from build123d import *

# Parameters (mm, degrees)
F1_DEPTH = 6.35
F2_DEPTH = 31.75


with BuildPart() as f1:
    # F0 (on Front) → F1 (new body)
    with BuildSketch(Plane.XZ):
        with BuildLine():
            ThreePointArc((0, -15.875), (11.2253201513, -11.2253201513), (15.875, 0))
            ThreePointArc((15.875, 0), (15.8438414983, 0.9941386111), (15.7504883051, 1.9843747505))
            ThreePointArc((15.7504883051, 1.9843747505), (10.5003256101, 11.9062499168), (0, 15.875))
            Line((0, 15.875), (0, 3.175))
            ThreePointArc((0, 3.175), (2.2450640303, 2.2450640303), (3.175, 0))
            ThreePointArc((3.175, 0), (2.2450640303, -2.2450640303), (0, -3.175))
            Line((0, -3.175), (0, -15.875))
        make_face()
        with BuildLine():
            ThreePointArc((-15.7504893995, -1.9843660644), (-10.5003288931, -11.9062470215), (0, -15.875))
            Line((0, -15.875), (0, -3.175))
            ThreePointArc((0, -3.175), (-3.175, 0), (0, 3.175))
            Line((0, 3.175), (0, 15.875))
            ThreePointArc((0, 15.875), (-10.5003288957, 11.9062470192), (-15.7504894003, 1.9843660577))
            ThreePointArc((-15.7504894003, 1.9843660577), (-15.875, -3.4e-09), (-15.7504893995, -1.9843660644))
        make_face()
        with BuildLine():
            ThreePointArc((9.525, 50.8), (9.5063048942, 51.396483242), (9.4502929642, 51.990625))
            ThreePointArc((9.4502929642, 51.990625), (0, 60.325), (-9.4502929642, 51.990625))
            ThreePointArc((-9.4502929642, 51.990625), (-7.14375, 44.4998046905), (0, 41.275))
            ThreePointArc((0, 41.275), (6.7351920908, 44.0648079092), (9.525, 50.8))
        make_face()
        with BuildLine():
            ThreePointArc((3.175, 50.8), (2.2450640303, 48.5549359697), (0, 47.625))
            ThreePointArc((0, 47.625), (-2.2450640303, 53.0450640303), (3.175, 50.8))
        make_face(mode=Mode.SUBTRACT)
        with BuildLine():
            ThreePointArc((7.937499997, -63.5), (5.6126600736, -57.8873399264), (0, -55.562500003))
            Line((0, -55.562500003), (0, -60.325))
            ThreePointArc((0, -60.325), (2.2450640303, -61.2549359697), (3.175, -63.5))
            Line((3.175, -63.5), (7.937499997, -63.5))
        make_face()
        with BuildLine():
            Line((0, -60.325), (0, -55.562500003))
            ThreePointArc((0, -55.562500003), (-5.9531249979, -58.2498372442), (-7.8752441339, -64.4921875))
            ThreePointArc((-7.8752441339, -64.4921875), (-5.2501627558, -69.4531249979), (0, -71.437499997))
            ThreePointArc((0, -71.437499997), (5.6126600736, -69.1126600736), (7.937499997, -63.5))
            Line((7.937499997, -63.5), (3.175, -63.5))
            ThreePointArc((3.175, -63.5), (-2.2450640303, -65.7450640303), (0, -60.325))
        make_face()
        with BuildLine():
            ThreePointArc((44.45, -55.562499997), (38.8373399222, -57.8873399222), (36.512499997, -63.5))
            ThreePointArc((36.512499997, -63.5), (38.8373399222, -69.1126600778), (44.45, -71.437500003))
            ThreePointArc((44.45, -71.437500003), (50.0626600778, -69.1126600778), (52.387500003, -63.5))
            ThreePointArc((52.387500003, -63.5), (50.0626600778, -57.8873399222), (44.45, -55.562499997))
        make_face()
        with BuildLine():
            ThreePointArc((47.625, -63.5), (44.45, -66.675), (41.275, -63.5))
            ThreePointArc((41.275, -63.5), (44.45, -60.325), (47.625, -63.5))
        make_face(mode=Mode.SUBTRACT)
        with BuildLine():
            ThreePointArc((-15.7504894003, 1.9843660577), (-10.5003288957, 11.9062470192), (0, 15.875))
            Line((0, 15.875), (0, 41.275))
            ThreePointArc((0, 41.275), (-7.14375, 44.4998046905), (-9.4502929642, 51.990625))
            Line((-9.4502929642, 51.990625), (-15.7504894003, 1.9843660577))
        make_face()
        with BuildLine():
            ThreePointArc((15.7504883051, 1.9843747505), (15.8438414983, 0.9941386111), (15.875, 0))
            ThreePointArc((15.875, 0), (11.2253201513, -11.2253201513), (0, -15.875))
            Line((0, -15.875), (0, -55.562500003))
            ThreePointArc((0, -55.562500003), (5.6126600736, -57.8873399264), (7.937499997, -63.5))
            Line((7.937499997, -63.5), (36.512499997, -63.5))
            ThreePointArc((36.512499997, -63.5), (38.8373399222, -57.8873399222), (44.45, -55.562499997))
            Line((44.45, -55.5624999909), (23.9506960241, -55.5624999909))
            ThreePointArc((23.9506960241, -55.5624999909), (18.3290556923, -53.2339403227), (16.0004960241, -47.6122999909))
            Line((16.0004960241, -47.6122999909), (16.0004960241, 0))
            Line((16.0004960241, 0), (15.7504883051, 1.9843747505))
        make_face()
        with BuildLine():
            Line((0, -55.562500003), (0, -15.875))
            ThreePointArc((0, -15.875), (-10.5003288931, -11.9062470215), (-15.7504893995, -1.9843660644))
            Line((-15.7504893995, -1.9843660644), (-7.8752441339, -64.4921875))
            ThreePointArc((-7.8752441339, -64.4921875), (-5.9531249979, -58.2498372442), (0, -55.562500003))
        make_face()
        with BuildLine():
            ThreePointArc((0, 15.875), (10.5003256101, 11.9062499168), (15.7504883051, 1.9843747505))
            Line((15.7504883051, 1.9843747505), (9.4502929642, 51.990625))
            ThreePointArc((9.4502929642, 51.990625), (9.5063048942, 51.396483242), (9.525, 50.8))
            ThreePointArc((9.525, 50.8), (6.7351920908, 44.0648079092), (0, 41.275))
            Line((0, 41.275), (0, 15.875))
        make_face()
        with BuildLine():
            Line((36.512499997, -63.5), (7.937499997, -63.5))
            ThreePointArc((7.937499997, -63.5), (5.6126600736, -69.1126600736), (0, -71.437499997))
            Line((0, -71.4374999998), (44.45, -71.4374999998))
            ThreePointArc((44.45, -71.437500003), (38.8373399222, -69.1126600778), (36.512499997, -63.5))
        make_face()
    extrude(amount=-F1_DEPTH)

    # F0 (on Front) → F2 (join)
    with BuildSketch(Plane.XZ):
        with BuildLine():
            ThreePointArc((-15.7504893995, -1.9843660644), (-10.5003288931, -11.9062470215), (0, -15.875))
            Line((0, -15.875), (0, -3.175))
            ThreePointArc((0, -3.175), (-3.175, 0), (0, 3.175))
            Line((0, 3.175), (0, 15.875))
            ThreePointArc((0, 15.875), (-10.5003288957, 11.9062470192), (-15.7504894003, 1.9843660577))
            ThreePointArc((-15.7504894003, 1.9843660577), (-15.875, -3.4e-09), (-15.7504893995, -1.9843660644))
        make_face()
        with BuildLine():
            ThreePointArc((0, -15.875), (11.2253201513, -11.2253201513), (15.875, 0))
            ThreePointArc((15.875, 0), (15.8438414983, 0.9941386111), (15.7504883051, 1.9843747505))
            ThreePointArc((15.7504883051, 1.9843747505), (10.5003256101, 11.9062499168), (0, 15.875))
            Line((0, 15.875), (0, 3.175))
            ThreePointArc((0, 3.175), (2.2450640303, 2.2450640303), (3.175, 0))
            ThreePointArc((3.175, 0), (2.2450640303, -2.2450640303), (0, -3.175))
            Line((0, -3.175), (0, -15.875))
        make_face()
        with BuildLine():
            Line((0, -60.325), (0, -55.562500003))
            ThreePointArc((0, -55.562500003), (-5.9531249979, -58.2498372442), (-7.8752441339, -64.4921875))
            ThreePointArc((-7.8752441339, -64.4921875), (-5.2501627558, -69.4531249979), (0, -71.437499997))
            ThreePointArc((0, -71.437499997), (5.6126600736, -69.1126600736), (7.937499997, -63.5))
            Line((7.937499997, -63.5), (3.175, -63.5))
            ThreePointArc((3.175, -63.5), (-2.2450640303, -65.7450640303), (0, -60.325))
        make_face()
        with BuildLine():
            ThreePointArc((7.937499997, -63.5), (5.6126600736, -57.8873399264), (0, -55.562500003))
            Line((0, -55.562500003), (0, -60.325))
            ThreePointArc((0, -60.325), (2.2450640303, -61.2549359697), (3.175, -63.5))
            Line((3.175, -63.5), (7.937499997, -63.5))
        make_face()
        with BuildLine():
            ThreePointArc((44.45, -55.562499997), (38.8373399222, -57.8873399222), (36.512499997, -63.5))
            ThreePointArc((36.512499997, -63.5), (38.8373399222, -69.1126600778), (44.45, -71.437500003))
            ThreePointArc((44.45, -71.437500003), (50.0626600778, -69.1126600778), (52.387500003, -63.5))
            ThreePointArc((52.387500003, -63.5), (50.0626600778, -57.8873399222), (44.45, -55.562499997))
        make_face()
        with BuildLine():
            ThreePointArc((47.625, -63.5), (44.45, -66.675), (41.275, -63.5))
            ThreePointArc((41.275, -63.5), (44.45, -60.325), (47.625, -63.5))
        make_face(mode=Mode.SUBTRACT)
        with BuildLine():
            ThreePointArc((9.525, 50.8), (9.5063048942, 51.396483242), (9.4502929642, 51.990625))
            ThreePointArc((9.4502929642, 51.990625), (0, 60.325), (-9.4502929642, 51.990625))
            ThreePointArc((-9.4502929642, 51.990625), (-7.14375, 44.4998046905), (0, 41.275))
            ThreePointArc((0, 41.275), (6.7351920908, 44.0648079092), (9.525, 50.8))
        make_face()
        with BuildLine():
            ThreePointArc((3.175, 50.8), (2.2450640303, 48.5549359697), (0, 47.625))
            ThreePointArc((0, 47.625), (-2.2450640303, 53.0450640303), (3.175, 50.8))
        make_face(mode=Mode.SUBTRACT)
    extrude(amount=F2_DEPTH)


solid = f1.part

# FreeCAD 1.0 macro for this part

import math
import FreeCAD as App
import Part
import Sketcher
from FreeCAD import Vector
Q = App.Units.Quantity

doc = App.newDocument("Part")
params = doc.addObject("Spreadsheet::Sheet", "Params")
for row, (alias, value) in enumerate([
    ("sketch1_diameter", "0.25 in"),
    ("sketch1_radius", "0.375 in"),
    ("sketch1_radius2", "0.625 in"),
    ("sketch1_radius3", "0.3125 in"),
    ("sketch1_radius4", "0.313 in"),
    ("pad1_length", "0.25 in"),
    ("sketch2_diameter", "0.25 in"),
    ("sketch2_radius", "0.625 in"),
    ("sketch2_radius2", "0.3125 in"),
    ("sketch2_radius3", "0.375 in"),
    ("pad2_length", "1.25 in"),
], start=1):
    params.set(f"A{row}", alias)
    params.set(f"B{row}", "=" + value)
    params.setAlias(f"B{row}", alias)

body = doc.addObject("PartDesign::Body", "Body")

sketch1 = body.newObject("Sketcher::SketchObject", "Sketch")
sketch1.AttachmentSupport = (doc.getObject("XZ_Plane"), [""])
sketch1.MapMode = "FlatFace"
sketch1.addGeometry([
    Part.ArcOfCircle(Part.Circle(Vector(0, 50.8, 0), Vector(0, 0, 1), 9.5), math.radians(7), math.radians(173)),
    Part.LineSegment(Vector(-9.5, 52, 0), Vector(-15.8, 2, 0)),
    Part.ArcOfCircle(Part.Circle(Vector(0, 0, 0), Vector(0, 0, 1), 15.9), math.radians(172.82), math.radians(187.18)),
    Part.LineSegment(Vector(-15.8, -2, 0), Vector(-7.9, -64.5, 0)),
    Part.ArcOfCircle(Part.Circle(Vector(0, -63.5, 0), Vector(0, 0, 1), 7.9), math.radians(-173), math.radians(-90)),
    Part.LineSegment(Vector(0, -71.4, 0), Vector(44.5, -71.4, 0)),
    Part.ArcOfCircle(Part.Circle(Vector(44.5, -63.5, 0), Vector(0, 0, 1), 7.9), math.radians(-90), math.radians(0)),
    Part.ArcOfCircle(Part.Circle(Vector(44.5, -63.5, 0), Vector(0, 0, 1), 7.9), math.radians(0), math.radians(90)),
    Part.LineSegment(Vector(44.5, -55.6, 0), Vector(24, -55.6, 0)),
    Part.ArcOfCircle(Part.Circle(Vector(24, -47.6, 0), Vector(0, 0, 1), 8), math.radians(180), math.radians(270)),
    Part.LineSegment(Vector(16, -47.6, 0), Vector(16, 0, 0)),
    Part.LineSegment(Vector(16, 0, 0), Vector(15.8, 2, 0)),
    Part.LineSegment(Vector(15.8, 2, 0), Vector(9.5, 52, 0)),
    Part.ArcOfCircle(Part.Circle(Vector(0, 0, 0), Vector(0, 0, 1), 3.2), math.radians(0), math.radians(90)),
    Part.ArcOfCircle(Part.Circle(Vector(0, 0, 0), Vector(0, 0, 1), 3.2), math.radians(-90), math.radians(0)),
    Part.ArcOfCircle(Part.Circle(Vector(0, 0, 0), Vector(0, 0, 1), 3.2), math.radians(90), math.radians(270)),
    Part.ArcOfCircle(Part.Circle(Vector(0, 50.8, 0), Vector(0, 0, 1), 3.2), math.radians(-90), math.radians(0)),
    Part.ArcOfCircle(Part.Circle(Vector(0, 50.8, 0), Vector(0, 0, 1), 3.2), math.radians(0), math.radians(270)),
    Part.ArcOfCircle(Part.Circle(Vector(0, -63.5, 0), Vector(0, 0, 1), 3.2), math.radians(90), math.radians(360)),
    Part.ArcOfCircle(Part.Circle(Vector(0, -63.5, 0), Vector(0, 0, 1), 3.2), math.radians(0), math.radians(90)),
    Part.Circle(Vector(44.5, -63.5, 0), Vector(0, 0, 1), 3.2),
], False)
sketch1.addConstraint([
    Sketcher.Constraint("Tangent", 0, 2, 1, 1),
    Sketcher.Constraint("Tangent", 1, 2, 2, 1),
    Sketcher.Constraint("Tangent", 2, 2, 3, 1),
    Sketcher.Constraint("Tangent", 3, 2, 4, 1),
    Sketcher.Constraint("Tangent", 4, 2, 5, 1),
    Sketcher.Constraint("Tangent", 5, 2, 6, 1),
    Sketcher.Constraint("Tangent", 6, 2, 7, 1),
    Sketcher.Constraint("Tangent", 7, 2, 8, 1),
    Sketcher.Constraint("Tangent", 8, 2, 9, 2),
    Sketcher.Constraint("Tangent", 9, 1, 10, 1),
    Sketcher.Constraint("Coincident", 10, 2, 11, 1),
    Sketcher.Constraint("Coincident", 11, 2, 12, 1),
    Sketcher.Constraint("Tangent", 12, 2, 0, 1),
    Sketcher.Constraint("Tangent", 13, 1, 14, 2),
    Sketcher.Constraint("Tangent", 14, 1, 15, 2),
    Sketcher.Constraint("Tangent", 15, 1, 13, 2),
    Sketcher.Constraint("Tangent", 16, 1, 17, 2),
    Sketcher.Constraint("Coincident", 17, 1, 16, 2),
    Sketcher.Constraint("Tangent", 18, 1, 19, 2),
    Sketcher.Constraint("Coincident", 19, 1, 18, 2),
    Sketcher.Constraint("Horizontal", 5),
    Sketcher.Constraint("Horizontal", 8),
    Sketcher.Constraint("Vertical", 10),
    Sketcher.Constraint("Coincident", 2, 3, -1, 1),
    Sketcher.Constraint("Coincident", 13, 3, -1, 1),
    Sketcher.Constraint("Coincident", 16, 3, 0, 3),
    Sketcher.Constraint("Coincident", 18, 3, 4, 3),
    Sketcher.Constraint("Coincident", 20, 3, 6, 3),
    Sketcher.Constraint("Equal", 4, 6),
    Sketcher.Constraint("Equal", 6, 7),
    Sketcher.Constraint("Equal", 15, 16),
    Sketcher.Constraint("Equal", 17, 18),
    Sketcher.Constraint("Equal", 19, 20),
    Sketcher.Constraint("Symmetric", 2, 2, 11, 2, -1, 1),
    Sketcher.Constraint("PointOnObject", 0, 3, -2),
    Sketcher.Constraint("PointOnObject", 4, 3, -2),
    Sketcher.Constraint("PointOnObject", 10, 2, -1),
    Sketcher.Constraint("PointOnObject", 13, 1, -1),
    Sketcher.Constraint("PointOnObject", 14, 1, -2),
    Sketcher.Constraint("PointOnObject", 15, 1, -2),
    Sketcher.Constraint("PointOnObject", 16, 1, -2),
    Sketcher.Constraint("PointOnObject", 18, 1, -2),
    Sketcher.Constraint("Parallel", 3, 11),
    Sketcher.Constraint("Parallel", 11, 12),
    Sketcher.Constraint("Horizontal", 20, 3, 6, 2),
    Sketcher.Constraint("Horizontal", 16, 3, 17, 1),
    Sketcher.Constraint("Horizontal", 6, 2, 19, 1),
    Sketcher.Constraint("Diameter", 20, Q("0.25 in")),
    Sketcher.Constraint("DistanceY", -1, 1, 0, 3, Q("2 in")),
    Sketcher.Constraint("Radius", 0, Q("0.375 in")),
    Sketcher.Constraint("Radius", 2, Q("0.625 in")),
    Sketcher.Constraint("Radius", 4, Q("0.3125 in")),
    Sketcher.Constraint("Radius", 9, Q("0.313 in")),
    Sketcher.Constraint("DistanceX", 5, 1, 5, 2, Q("1.75 in")),
])
sketch1.setExpression("Constraints[47]", "Params.sketch1_diameter")
sketch1.setExpression("Constraints[49]", "Params.sketch1_radius")
sketch1.setExpression("Constraints[50]", "Params.sketch1_radius2")
sketch1.setExpression("Constraints[51]", "Params.sketch1_radius3")
sketch1.setExpression("Constraints[52]", "Params.sketch1_radius4")
pad1 = body.newObject("PartDesign::Pad", "Pad")
pad1.Profile = sketch1
pad1.setExpression("Length", "Params.pad1_length")
pad1.Reversed = True

sketch2 = body.newObject("Sketcher::SketchObject", "Sketch001")
sketch2.AttachmentSupport = (doc.getObject("XZ_Plane"), [""])
sketch2.MapMode = "FlatFace"
sketch2.addGeometry([
    Part.ArcOfCircle(Part.Circle(Vector(0, 0, 0), Vector(0, 0, 1), 15.9), math.radians(-173), math.radians(-90)),
    Part.ArcOfCircle(Part.Circle(Vector(0, 0, 0), Vector(0, 0, 1), 15.9), math.radians(-90), math.radians(0)),
    Part.ArcOfCircle(Part.Circle(Vector(0, 0, 0), Vector(0, 0, 1), 15.9), math.radians(0), math.radians(7.18)),
    Part.ArcOfCircle(Part.Circle(Vector(0, 0, 0), Vector(0, 0, 1), 15.9), math.radians(7), math.radians(90)),
    Part.ArcOfCircle(Part.Circle(Vector(0, 0, 0), Vector(0, 0, 1), 15.9), math.radians(90), math.radians(173)),
    Part.ArcOfCircle(Part.Circle(Vector(0, 0, 0), Vector(0, 0, 1), 15.9), math.radians(172.82), math.radians(187.18)),
    Part.ArcOfCircle(Part.Circle(Vector(0, 0, 0), Vector(0, 0, 1), 3.2), math.radians(90), math.radians(270)),
    Part.ArcOfCircle(Part.Circle(Vector(0, 0, 0), Vector(0, 0, 1), 3.2), math.radians(0), math.radians(90)),
    Part.ArcOfCircle(Part.Circle(Vector(0, 0, 0), Vector(0, 0, 1), 3.2), math.radians(-90), math.radians(0)),
    Part.ArcOfCircle(Part.Circle(Vector(0, -63.5, 0), Vector(0, 0, 1), 7.9), math.radians(90), math.radians(187)),
    Part.ArcOfCircle(Part.Circle(Vector(0, -63.5, 0), Vector(0, 0, 1), 7.9), math.radians(-173), math.radians(-90)),
    Part.ArcOfCircle(Part.Circle(Vector(0, -63.5, 0), Vector(0, 0, 1), 7.9), math.radians(-90), math.radians(0)),
    Part.ArcOfCircle(Part.Circle(Vector(0, -63.5, 0), Vector(0, 0, 1), 7.9), math.radians(0), math.radians(90)),
    Part.ArcOfCircle(Part.Circle(Vector(0, -63.5, 0), Vector(0, 0, 1), 3.2), math.radians(90), math.radians(360)),
    Part.ArcOfCircle(Part.Circle(Vector(0, -63.5, 0), Vector(0, 0, 1), 3.2), math.radians(0), math.radians(90)),
    Part.ArcOfCircle(Part.Circle(Vector(44.5, -63.5, 0), Vector(0, 0, 1), 7.9), math.radians(90), math.radians(180)),
    Part.ArcOfCircle(Part.Circle(Vector(44.5, -63.5, 0), Vector(0, 0, 1), 7.9), math.radians(180), math.radians(270)),
    Part.ArcOfCircle(Part.Circle(Vector(44.5, -63.5, 0), Vector(0, 0, 1), 7.9), math.radians(-90), math.radians(0)),
    Part.ArcOfCircle(Part.Circle(Vector(44.5, -63.5, 0), Vector(0, 0, 1), 7.9), math.radians(0), math.radians(90)),
    Part.Circle(Vector(44.5, -63.5, 0), Vector(0, 0, 1), 3.2),
    Part.ArcOfCircle(Part.Circle(Vector(0, 50.8, 0), Vector(0, 0, 1), 9.5), math.radians(0), math.radians(7.18)),
    Part.ArcOfCircle(Part.Circle(Vector(0, 50.8, 0), Vector(0, 0, 1), 9.5), math.radians(7), math.radians(173)),
    Part.ArcOfCircle(Part.Circle(Vector(0, 50.8, 0), Vector(0, 0, 1), 9.5), math.radians(173), math.radians(270)),
    Part.ArcOfCircle(Part.Circle(Vector(0, 50.8, 0), Vector(0, 0, 1), 9.5), math.radians(-90), math.radians(0)),
    Part.ArcOfCircle(Part.Circle(Vector(0, 50.8, 0), Vector(0, 0, 1), 3.2), math.radians(0), math.radians(270)),
    Part.ArcOfCircle(Part.Circle(Vector(0, 50.8, 0), Vector(0, 0, 1), 3.2), math.radians(-90), math.radians(0)),
], False)
sketch2.addConstraint([
    Sketcher.Constraint("Tangent", 0, 2, 1, 1),
    Sketcher.Constraint("Tangent", 1, 2, 2, 1),
    Sketcher.Constraint("Tangent", 2, 2, 3, 1),
    Sketcher.Constraint("Tangent", 3, 2, 4, 1),
    Sketcher.Constraint("Tangent", 4, 2, 5, 1),
    Sketcher.Constraint("Tangent", 5, 2, 0, 1),
    Sketcher.Constraint("Tangent", 6, 1, 7, 2),
    Sketcher.Constraint("Tangent", 7, 1, 8, 2),
    Sketcher.Constraint("Tangent", 8, 1, 6, 2),
    Sketcher.Constraint("Tangent", 9, 2, 10, 1),
    Sketcher.Constraint("Tangent", 10, 2, 11, 1),
    Sketcher.Constraint("Tangent", 11, 2, 12, 1),
    Sketcher.Constraint("Tangent", 12, 2, 9, 1),
    Sketcher.Constraint("Tangent", 13, 1, 14, 2),
    Sketcher.Constraint("Coincident", 14, 1, 13, 2),
    Sketcher.Constraint("Tangent", 15, 2, 16, 1),
    Sketcher.Constraint("Tangent", 16, 2, 17, 1),
    Sketcher.Constraint("Tangent", 17, 2, 18, 1),
    Sketcher.Constraint("Tangent", 18, 2, 15, 1),
    Sketcher.Constraint("Tangent", 20, 2, 21, 1),
    Sketcher.Constraint("Tangent", 21, 2, 22, 1),
    Sketcher.Constraint("Tangent", 22, 2, 23, 1),
    Sketcher.Constraint("Tangent", 23, 2, 20, 1),
    Sketcher.Constraint("Tangent", 24, 1, 25, 2),
    Sketcher.Constraint("Coincident", 25, 1, 24, 2),
    Sketcher.Constraint("Coincident", 0, 3, -1, 1),
    Sketcher.Constraint("Coincident", 2, 3, -1, 1),
    Sketcher.Constraint("Coincident", 6, 3, -1, 1),
    Sketcher.Constraint("Coincident", 13, 3, 9, 3),
    Sketcher.Constraint("Coincident", 19, 3, 15, 3),
    Sketcher.Constraint("Coincident", 24, 3, 20, 3),
    Sketcher.Constraint("Equal", 2, 3),
    Sketcher.Constraint("Equal", 9, 10),
    Sketcher.Constraint("Equal", 8, 13),
    Sketcher.Constraint("Equal", 12, 15),
    Sketcher.Constraint("Equal", 15, 16),
    Sketcher.Constraint("Equal", 14, 19),
    Sketcher.Constraint("Equal", 20, 21),
    Sketcher.Constraint("Equal", 19, 24),
    Sketcher.Constraint("Symmetric", 20, 2, 21, 2, -2),
    Sketcher.Constraint("PointOnObject", 9, 3, -2),
    Sketcher.Constraint("PointOnObject", 0, 2, -2),
    Sketcher.Constraint("PointOnObject", 1, 2, -1),
    Sketcher.Constraint("PointOnObject", 3, 2, -2),
    Sketcher.Constraint("PointOnObject", 6, 1, -2),
    Sketcher.Constraint("PointOnObject", 7, 1, -1),
    Sketcher.Constraint("PointOnObject", 8, 1, -2),
    Sketcher.Constraint("PointOnObject", 10, 2, -2),
    Sketcher.Constraint("PointOnObject", 12, 2, -2),
    Sketcher.Constraint("PointOnObject", 13, 1, -2),
    Sketcher.Constraint("PointOnObject", 22, 2, -2),
    Sketcher.Constraint("PointOnObject", 25, 1, -2),
    Sketcher.Constraint("Horizontal", 14, 3, 15, 3),
    Sketcher.Constraint("Horizontal", 19, 3, 11, 2),
    Sketcher.Constraint("Horizontal", 11, 2, 14, 1),
    Sketcher.Constraint("Horizontal", 14, 1, 15, 2),
    Sketcher.Constraint("Horizontal", 15, 2, 17, 2),
    Sketcher.Constraint("Horizontal", 25, 3, 23, 2),
    Sketcher.Constraint("Horizontal", 23, 2, 24, 1),
    Sketcher.Constraint("Vertical", 4, 2, 5, 2),
    Sketcher.Constraint("Vertical", 19, 3, 16, 2),
    Sketcher.Constraint("Vertical", 16, 2, 18, 2),
    Sketcher.Constraint("Diameter", 19, Q("0.25 in")),
    Sketcher.Constraint("DistanceY", -1, 1, 20, 3, Q("2 in")),
    Sketcher.Constraint("Radius", 0, Q("0.625 in")),
    Sketcher.Constraint("Radius", 9, Q("0.3125 in")),
    Sketcher.Constraint("Radius", 20, Q("0.375 in")),
    Sketcher.Constraint("DistanceY", 9, 3, -1, 1, Q("2.5 in")),
    Sketcher.Constraint("DistanceX", -1, 1, 15, 3, Q("1.75 in")),
    Sketcher.Constraint("DistanceY", -1, 1, 2, 2, Q("0.078125 in")),
    Sketcher.Constraint("DistanceY", -1, 1, 20, 2, Q("2.046875 in")),
    Sketcher.Constraint("DistanceX", 4, 2, -1, 1, Q("15.750489 mm")),
    Sketcher.Constraint("DistanceX", 9, 2, -1, 1, Q("7.875244 mm")),
])
sketch2.setExpression("Constraints[62]", "Params.sketch2_diameter")
sketch2.setExpression("Constraints[64]", "Params.sketch2_radius")
sketch2.setExpression("Constraints[65]", "Params.sketch2_radius2")
sketch2.setExpression("Constraints[66]", "Params.sketch2_radius3")
pad2 = body.newObject("PartDesign::Pad", "Pad001")
pad2.Profile = sketch2
pad2.setExpression("Length", "Params.pad2_length")

doc.recompute()
